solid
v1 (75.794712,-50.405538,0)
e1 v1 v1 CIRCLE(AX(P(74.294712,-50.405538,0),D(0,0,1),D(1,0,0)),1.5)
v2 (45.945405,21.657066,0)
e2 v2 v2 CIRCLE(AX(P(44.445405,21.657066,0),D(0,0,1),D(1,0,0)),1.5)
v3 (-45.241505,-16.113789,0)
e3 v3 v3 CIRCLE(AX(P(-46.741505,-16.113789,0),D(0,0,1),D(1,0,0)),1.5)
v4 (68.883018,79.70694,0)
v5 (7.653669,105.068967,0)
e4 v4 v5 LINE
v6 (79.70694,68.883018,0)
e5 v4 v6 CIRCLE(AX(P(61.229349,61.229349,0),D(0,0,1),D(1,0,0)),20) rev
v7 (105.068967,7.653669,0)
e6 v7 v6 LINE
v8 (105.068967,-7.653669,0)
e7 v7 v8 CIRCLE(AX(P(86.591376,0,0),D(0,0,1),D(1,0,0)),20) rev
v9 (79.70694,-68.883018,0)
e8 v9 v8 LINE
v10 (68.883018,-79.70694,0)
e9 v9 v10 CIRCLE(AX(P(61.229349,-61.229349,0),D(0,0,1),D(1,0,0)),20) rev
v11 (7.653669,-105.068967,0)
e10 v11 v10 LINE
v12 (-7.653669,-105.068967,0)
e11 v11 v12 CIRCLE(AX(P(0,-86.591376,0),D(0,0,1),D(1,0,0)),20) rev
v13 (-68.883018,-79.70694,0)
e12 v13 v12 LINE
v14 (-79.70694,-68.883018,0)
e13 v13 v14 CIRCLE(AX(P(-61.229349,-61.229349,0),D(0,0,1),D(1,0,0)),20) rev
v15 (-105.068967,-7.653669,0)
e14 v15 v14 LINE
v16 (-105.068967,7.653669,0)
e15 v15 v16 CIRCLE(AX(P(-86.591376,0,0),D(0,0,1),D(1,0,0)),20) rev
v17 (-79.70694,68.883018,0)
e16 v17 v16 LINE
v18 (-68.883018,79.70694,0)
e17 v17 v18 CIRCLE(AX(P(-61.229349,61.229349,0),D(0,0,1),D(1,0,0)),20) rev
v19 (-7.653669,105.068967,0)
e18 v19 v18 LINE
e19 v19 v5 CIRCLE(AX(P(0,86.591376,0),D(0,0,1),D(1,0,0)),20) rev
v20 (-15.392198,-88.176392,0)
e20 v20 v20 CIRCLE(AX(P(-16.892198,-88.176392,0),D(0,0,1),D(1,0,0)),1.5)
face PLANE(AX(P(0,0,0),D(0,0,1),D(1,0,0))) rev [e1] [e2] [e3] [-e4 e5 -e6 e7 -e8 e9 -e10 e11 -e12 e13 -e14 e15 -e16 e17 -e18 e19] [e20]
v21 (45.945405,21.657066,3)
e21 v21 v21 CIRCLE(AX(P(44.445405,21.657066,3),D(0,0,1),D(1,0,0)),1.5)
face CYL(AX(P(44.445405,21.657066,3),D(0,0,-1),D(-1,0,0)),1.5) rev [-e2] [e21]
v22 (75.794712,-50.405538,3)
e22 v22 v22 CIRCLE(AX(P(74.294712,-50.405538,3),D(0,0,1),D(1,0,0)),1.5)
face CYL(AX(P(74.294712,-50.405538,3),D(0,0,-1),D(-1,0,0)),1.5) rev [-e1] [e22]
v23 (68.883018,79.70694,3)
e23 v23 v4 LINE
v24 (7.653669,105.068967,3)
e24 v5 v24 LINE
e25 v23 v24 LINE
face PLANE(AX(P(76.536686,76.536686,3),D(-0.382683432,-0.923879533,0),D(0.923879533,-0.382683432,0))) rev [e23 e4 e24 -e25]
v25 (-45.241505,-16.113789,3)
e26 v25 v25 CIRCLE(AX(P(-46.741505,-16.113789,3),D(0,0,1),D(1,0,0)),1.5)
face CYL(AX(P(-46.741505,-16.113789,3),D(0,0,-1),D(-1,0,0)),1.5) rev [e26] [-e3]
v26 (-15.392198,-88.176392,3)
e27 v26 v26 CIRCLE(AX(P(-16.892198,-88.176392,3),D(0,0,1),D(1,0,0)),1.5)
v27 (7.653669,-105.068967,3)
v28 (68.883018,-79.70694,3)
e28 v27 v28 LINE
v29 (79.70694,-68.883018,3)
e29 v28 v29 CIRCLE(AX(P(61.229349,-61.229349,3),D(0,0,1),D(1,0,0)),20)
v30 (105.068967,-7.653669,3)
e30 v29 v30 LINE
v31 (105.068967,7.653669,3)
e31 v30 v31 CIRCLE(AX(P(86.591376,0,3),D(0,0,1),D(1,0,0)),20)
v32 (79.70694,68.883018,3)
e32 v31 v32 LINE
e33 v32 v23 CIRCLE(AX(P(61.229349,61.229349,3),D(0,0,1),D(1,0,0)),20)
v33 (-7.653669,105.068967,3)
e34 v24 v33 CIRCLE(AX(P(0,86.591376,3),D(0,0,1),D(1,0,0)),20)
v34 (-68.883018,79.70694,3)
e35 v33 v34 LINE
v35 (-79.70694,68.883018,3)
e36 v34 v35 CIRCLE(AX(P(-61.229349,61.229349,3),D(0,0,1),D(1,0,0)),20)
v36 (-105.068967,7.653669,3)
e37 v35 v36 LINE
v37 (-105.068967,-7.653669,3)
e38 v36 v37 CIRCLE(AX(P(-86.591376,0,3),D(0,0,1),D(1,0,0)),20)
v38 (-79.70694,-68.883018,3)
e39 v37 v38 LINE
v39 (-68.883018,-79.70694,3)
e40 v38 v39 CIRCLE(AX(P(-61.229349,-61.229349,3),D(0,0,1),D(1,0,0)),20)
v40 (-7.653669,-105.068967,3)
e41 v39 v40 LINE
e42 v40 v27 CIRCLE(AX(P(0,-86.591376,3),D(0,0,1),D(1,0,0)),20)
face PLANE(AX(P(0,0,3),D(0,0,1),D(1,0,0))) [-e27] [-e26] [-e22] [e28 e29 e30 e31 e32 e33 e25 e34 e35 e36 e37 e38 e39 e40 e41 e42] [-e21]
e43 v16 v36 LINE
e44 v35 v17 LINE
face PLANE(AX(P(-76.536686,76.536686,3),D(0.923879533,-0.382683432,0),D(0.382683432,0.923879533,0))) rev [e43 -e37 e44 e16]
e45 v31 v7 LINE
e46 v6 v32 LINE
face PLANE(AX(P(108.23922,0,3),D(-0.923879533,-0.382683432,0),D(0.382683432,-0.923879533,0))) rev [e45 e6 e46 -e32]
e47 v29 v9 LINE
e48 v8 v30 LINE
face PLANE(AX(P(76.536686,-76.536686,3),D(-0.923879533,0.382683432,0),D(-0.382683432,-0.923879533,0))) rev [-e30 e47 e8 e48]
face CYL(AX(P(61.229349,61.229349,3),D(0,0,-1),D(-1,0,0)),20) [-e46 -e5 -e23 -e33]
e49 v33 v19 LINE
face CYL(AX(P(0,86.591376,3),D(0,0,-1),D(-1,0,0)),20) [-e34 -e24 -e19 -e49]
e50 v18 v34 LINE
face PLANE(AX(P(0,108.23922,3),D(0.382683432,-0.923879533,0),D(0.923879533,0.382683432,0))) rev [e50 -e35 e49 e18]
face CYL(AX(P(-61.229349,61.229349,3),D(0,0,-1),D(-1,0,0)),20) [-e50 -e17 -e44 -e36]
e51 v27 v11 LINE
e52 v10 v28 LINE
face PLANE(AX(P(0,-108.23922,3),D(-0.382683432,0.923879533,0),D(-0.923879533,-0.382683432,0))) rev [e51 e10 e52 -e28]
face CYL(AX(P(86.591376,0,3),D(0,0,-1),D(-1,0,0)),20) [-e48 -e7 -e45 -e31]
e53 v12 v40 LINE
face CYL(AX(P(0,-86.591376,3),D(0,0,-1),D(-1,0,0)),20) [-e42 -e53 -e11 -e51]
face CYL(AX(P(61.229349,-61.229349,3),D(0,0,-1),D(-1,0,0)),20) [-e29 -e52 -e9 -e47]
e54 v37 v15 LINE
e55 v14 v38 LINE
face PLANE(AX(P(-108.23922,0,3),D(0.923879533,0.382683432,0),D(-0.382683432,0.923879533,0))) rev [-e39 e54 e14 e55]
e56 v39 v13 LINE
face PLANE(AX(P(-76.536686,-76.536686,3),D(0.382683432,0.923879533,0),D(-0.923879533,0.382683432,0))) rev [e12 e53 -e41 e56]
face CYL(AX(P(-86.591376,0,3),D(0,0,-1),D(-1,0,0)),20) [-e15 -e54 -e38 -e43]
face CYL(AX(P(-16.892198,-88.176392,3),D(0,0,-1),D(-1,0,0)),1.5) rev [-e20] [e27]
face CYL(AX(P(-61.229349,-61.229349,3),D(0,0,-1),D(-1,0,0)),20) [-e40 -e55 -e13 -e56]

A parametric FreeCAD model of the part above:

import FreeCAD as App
import Part
import Sketcher
from FreeCAD import Vector
Q = App.Units.Quantity


def edges_at(feature, points):
    """Names of the edges that pass closest to the given points."""
    edges = feature.Shape.Edges
    near = lambda p: min(range(len(edges)), key=lambda i: edges[i].distToShape(Part.Vertex(*p))[0])
    return sorted({f"Edge{near(p) + 1}" for p in points})

doc = App.newDocument("Part")
params = doc.addObject("Spreadsheet::Sheet", "Params")
for row, (alias, value) in enumerate([
    ("sketch1_diameter", "3 mm"),
    ("pad1_length", "3 mm"),
    ("fillet_radius", "20 mm"),
], start=1):
    params.set(f"A{row}", alias)
    params.set(f"B{row}", "=" + value)
    params.setAlias(f"B{row}", alias)

body = doc.addObject("PartDesign::Body", "Body")

# Sketch on XY plane
sketch1 = body.newObject("Sketcher::SketchObject", "Sketch")
sketch1.AttachmentSupport = (doc.getObject("XY_Plane"), [""])
sketch1.MapMode = "FlatFace"
sketch1.addGeometry(Part.LineSegment(Vector(0, 108.2, 0), Vector(-76.5, 76.5, 0)), False)
sketch1.addGeometry(Part.LineSegment(Vector(-76.5, 76.5, 0), Vector(-108.2, 0, 0)), False)
sketch1.addGeometry(Part.LineSegment(Vector(-108.2, 0, 0), Vector(-76.5, -76.5, 0)), False)
sketch1.addGeometry(Part.LineSegment(Vector(-76.5, -76.5, 0), Vector(0, -108.2, 0)), False)
sketch1.addGeometry(Part.LineSegment(Vector(0, -108.2, 0), Vector(76.5, -76.5, 0)), False)
sketch1.addGeometry(Part.LineSegment(Vector(76.5, -76.5, 0), Vector(108.2, 0, 0)), False)
sketch1.addGeometry(Part.LineSegment(Vector(108.2, 0, 0), Vector(76.5, 76.5, 0)), False)
sketch1.addGeometry(Part.LineSegment(Vector(76.5, 76.5, 0), Vector(0, 108.2, 0)), False)
sketch1.addGeometry(Part.Circle(Vector(-16.9, -88.2, 0), Vector(0, 0, 1), 1.5), False)
sketch1.addGeometry(Part.Circle(Vector(74.3, -50.4, 0), Vector(0, 0, 1), 1.5), False)
sketch1.addGeometry(Part.Circle(Vector(-46.7, -16.1, 0), Vector(0, 0, 1), 1.5), False)
sketch1.addGeometry(Part.Circle(Vector(44.4, 21.7, 0), Vector(0, 0, 1), 1.5), False)
sketch1.addConstraint(Sketcher.Constraint("Coincident", 0, 2, 1, 1))
sketch1.addConstraint(Sketcher.Constraint("Coincident", 1, 2, 2, 1))
sketch1.addConstraint(Sketcher.Constraint("Coincident", 2, 2, 3, 1))
sketch1.addConstraint(Sketcher.Constraint("Coincident", 3, 2, 4, 1))
sketch1.addConstraint(Sketcher.Constraint("Coincident", 4, 2, 5, 1))
sketch1.addConstraint(Sketcher.Constraint("Coincident", 5, 2, 6, 1))
sketch1.addConstraint(Sketcher.Constraint("Coincident", 6, 2, 7, 1))
sketch1.addConstraint(Sketcher.Constraint("Coincident", 7, 2, 0, 1))
sketch1.addConstraint(Sketcher.Constraint("Equal", 8, 9))
sketch1.addConstraint(Sketcher.Constraint("Equal", 9, 10))
sketch1.addConstraint(Sketcher.Constraint("Equal", 10, 11))
sketch1.addConstraint(Sketcher.Constraint("Symmetric", 0, 2, 4, 2, -1, 1))
sketch1.addConstraint(Sketcher.Constraint("Symmetric", 1, 2, 5, 2, -1, 1))
sketch1.addConstraint(Sketcher.Constraint("Symmetric", 2, 2, 6, 2, -1, 1))
sketch1.addConstraint(Sketcher.Constraint("Symmetric", 3, 2, 7, 2, -1, 1))
sketch1.addConstraint(Sketcher.Constraint("Symmetric", 2, 2, 4, 2, -2))
sketch1.addConstraint(Sketcher.Constraint("PointOnObject", 1, 2, -1))
sketch1.addConstraint(Sketcher.Constraint("PointOnObject", 3, 2, -2))
sketch1.addConstraint(Sketcher.Constraint("Perpendicular", 0, 2))
sketch1.addConstraint(Sketcher.Constraint("Equal", 0, 1))
sketch1.addConstraint(Sketcher.Constraint("Diameter", 8, Q("3 mm")))
sketch1.addConstraint(Sketcher.Constraint("Angle", 0, Q("-157.5 deg")))
sketch1.addConstraint(Sketcher.Constraint("DistanceX", 0, 2, 9, 3, Q("150.831399 mm")))
sketch1.addConstraint(Sketcher.Constraint("DistanceY", 10, 3, -1, 1, Q("16.113789 mm")))
sketch1.addConstraint(Sketcher.Constraint("DistanceX", 1, 2, -1, 1, Q("108.23922 mm")))
sketch1.addConstraint(Sketcher.Constraint("DistanceX", 8, 3, 9, 3, Q("91.18691 mm")))
sketch1.addConstraint(Sketcher.Constraint("DistanceY", 9, 3, 10, 3, Q("34.291749 mm")))
sketch1.addConstraint(Sketcher.Constraint("DistanceX", 10, 3, 11, 3, Q("91.18691 mm")))
sketch1.addConstraint(Sketcher.Constraint("DistanceY", 8, 3, 11, 3, Q("109.833458 mm")))
sketch1.addConstraint(Sketcher.Constraint("DistanceX", 0, 2, 10, 3, Q("29.795181 mm")))
sketch1.addConstraint(Sketcher.Constraint("DistanceY", 11, 3, 0, 2, Q("54.87962 mm")))
sketch1.setExpression("Constraints[20]", "Params.sketch1_diameter")
pad1 = body.newObject("PartDesign::Pad", "Pad")
pad1.Profile = sketch1
pad1.setExpression("Length", "Params.pad1_length")
doc.recompute()

fillet = body.newObject("PartDesign::Fillet", "Fillet")
fillet.Base = (pad1, edges_at(pad1, [
    (76.537, 76.537, 1.5),
    (108.239, 0, 1.5),
    (76.537, -76.537, 1.5),
    (0, -108.239, 1.5),
    (-76.537, -76.537, 1.5),
    (-108.239, 0, 1.5),
    (-76.537, 76.537, 1.5),
    (0, 108.239, 1.5),
]))
fillet.setExpression("Radius", "Params.fillet_radius")

doc.recompute()
